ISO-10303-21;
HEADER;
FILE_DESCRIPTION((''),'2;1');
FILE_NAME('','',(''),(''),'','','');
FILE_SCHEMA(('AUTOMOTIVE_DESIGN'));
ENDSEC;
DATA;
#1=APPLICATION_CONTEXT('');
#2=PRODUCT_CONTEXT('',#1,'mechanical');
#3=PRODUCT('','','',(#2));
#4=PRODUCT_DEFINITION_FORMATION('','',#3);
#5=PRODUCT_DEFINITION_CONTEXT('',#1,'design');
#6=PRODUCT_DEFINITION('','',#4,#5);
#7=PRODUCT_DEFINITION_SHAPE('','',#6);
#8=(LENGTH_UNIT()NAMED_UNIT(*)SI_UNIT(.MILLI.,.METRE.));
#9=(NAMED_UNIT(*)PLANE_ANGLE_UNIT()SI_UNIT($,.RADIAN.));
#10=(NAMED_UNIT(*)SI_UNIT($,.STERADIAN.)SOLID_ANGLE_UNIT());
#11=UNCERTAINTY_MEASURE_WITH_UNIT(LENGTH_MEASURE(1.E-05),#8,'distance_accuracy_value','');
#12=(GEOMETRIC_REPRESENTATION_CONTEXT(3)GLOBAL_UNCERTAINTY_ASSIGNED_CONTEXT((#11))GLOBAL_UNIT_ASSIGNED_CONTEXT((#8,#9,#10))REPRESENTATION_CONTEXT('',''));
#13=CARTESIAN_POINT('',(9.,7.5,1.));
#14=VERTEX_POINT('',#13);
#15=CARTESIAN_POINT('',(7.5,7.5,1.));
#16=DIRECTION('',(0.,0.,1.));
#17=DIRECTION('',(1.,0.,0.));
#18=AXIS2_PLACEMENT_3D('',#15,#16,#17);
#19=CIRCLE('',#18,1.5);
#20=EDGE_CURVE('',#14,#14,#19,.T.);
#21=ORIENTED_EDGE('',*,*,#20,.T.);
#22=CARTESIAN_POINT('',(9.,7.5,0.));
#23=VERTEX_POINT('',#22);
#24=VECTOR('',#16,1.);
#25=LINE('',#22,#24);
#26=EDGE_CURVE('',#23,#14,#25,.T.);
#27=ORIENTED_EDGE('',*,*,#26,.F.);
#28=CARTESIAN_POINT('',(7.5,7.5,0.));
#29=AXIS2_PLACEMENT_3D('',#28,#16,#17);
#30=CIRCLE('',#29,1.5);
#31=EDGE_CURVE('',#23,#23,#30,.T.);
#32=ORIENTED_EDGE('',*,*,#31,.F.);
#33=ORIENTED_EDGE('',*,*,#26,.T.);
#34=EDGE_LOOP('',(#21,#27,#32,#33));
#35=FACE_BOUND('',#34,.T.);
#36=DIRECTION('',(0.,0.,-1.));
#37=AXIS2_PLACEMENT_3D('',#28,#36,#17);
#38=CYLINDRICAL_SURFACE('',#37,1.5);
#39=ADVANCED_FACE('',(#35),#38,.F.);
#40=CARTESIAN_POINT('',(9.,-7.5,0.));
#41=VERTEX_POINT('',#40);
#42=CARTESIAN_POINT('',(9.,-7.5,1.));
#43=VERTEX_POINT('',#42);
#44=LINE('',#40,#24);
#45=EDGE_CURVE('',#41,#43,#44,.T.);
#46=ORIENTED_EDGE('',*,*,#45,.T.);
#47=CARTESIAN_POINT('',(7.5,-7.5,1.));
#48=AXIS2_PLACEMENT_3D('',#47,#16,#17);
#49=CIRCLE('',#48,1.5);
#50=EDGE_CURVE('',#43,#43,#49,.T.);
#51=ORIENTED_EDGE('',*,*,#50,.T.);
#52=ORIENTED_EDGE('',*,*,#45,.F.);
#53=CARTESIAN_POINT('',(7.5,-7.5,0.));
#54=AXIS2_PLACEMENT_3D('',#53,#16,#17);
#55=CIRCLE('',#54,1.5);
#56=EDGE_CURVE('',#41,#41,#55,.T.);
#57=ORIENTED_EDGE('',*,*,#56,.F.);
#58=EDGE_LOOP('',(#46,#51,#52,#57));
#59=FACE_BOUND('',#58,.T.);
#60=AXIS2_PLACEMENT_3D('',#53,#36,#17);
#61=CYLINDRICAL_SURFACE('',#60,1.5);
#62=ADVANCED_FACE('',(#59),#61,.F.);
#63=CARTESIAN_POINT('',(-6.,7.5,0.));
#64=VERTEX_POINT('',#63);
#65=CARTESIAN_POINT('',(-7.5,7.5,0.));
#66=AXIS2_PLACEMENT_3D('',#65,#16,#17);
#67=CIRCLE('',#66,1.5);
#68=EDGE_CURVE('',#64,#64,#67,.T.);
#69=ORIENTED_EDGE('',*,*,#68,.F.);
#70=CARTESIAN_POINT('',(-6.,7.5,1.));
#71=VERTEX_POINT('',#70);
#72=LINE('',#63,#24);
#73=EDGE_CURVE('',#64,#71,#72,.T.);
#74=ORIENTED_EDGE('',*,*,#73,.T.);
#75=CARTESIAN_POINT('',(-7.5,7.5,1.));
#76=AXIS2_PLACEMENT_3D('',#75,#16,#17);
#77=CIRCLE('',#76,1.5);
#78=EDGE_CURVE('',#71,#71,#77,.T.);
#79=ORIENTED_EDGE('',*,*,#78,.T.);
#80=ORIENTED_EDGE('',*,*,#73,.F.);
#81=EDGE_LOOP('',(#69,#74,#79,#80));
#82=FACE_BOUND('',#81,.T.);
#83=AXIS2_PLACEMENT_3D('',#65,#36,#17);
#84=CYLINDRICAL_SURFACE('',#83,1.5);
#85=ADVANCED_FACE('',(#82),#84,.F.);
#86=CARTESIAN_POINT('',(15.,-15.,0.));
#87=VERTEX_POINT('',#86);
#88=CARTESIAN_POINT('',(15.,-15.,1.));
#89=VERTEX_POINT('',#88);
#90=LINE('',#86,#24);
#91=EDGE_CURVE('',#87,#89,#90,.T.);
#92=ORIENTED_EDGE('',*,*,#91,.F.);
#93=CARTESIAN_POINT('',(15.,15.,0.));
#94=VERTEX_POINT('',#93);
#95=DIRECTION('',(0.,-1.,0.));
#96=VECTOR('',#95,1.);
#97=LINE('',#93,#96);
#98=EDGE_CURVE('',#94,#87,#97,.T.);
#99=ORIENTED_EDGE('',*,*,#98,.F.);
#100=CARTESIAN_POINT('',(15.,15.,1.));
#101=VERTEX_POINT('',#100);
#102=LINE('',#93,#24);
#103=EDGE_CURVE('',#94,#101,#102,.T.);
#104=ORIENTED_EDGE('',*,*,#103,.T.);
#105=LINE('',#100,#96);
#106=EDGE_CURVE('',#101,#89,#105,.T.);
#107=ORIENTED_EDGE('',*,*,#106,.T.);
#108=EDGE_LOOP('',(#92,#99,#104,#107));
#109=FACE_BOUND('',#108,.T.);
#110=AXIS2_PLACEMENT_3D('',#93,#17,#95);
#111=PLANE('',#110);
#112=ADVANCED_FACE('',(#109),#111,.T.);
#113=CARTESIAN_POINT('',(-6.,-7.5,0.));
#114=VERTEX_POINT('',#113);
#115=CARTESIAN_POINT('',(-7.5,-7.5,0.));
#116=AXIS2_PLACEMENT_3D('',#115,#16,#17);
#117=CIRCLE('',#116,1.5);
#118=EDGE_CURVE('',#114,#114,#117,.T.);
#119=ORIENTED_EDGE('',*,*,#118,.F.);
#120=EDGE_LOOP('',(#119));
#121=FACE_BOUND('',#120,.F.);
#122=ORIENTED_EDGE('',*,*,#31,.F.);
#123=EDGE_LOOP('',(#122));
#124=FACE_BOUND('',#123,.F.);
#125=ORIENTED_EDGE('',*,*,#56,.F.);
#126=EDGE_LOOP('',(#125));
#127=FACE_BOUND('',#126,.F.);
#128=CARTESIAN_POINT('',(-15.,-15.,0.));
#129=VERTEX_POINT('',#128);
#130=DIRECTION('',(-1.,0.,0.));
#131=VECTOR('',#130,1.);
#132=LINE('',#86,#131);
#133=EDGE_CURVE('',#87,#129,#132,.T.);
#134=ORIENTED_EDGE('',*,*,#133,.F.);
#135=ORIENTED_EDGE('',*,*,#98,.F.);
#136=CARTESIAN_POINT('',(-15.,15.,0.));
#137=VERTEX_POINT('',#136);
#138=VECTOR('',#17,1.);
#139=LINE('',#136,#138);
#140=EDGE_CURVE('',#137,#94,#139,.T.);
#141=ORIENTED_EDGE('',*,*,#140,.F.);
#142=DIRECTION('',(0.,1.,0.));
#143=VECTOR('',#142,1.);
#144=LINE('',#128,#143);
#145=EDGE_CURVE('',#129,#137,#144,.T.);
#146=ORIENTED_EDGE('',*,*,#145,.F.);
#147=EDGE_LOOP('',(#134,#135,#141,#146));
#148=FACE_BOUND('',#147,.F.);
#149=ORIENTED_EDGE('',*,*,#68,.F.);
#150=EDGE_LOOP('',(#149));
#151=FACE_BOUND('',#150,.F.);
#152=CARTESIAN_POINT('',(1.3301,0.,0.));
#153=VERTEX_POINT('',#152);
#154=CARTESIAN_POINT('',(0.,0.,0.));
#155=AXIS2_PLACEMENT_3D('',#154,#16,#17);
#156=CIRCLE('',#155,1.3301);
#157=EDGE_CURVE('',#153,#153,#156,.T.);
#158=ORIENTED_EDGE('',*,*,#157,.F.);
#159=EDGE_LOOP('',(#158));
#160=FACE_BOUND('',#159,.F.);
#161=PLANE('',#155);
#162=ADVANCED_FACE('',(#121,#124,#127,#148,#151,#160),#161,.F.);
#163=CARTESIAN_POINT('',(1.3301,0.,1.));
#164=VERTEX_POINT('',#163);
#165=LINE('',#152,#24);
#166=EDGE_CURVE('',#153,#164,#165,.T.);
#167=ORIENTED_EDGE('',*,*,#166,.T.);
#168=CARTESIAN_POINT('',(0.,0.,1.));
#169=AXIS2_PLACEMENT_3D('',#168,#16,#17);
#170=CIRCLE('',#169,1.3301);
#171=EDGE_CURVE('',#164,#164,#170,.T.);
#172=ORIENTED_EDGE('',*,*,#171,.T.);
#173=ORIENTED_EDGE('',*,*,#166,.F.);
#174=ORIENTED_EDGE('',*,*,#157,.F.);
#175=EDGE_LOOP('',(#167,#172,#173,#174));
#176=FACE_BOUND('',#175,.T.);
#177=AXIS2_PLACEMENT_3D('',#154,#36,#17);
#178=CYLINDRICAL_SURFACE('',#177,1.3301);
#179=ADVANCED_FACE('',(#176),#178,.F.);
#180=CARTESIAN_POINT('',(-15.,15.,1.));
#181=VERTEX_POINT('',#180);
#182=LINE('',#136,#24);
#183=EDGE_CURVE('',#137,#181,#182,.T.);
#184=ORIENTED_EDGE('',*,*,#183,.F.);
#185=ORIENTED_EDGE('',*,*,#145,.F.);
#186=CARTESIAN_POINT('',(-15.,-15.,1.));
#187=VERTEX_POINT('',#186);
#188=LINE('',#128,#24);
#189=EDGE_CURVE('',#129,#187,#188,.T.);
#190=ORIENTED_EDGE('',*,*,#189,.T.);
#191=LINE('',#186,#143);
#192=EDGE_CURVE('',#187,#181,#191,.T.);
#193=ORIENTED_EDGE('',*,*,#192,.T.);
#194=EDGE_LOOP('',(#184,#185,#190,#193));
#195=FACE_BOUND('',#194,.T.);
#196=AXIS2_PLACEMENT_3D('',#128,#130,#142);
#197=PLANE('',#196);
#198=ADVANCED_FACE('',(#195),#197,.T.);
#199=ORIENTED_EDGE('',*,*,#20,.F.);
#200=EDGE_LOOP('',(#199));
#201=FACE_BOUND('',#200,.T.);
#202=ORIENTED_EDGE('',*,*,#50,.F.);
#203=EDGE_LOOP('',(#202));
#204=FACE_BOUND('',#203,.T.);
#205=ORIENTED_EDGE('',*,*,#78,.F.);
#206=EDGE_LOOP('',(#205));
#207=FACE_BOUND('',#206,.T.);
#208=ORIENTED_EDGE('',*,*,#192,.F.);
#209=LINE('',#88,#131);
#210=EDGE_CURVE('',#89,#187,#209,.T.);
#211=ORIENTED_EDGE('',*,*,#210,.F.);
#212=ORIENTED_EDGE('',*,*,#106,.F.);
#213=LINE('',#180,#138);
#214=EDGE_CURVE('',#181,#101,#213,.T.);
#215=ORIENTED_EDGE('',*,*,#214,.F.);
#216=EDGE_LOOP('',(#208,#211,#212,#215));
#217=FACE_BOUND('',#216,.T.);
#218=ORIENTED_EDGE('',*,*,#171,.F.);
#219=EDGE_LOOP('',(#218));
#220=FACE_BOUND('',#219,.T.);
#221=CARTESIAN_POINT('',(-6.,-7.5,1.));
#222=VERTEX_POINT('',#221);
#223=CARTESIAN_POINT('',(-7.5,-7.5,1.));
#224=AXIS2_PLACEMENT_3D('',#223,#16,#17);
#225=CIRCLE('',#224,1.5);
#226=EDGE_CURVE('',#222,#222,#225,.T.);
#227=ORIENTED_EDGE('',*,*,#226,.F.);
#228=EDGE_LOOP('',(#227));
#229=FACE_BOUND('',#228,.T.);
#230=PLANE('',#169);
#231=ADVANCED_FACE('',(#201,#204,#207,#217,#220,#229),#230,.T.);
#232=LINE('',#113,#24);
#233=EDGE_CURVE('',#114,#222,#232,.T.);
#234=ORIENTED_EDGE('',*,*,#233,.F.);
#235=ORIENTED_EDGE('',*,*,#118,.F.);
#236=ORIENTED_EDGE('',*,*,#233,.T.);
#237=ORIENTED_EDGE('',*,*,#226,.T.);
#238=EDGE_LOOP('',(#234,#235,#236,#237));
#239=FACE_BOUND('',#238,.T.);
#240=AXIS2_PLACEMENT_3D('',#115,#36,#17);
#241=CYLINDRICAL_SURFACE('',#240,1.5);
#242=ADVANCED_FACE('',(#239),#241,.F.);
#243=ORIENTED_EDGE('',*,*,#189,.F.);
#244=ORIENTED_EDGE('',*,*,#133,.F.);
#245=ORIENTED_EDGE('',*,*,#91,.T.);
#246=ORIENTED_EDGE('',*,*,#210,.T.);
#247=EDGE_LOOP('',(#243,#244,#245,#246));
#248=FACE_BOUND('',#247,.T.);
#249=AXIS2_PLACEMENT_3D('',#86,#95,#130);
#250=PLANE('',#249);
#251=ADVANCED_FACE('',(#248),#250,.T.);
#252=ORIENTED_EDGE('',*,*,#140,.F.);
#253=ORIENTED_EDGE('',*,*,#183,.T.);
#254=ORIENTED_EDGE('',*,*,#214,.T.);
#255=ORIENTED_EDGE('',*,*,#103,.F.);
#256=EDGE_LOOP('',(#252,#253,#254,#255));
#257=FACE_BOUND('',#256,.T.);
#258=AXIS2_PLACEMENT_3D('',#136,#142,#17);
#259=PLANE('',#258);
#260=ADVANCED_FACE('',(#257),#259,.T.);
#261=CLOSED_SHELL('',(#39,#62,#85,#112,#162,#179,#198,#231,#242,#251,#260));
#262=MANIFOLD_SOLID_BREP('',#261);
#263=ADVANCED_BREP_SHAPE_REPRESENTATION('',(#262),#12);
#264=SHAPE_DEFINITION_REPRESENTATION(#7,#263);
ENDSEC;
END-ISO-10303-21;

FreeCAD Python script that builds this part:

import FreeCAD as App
import Part
import Sketcher

V = App.Vector
Q = App.Units.Quantity

doc = App.newDocument("Part")
params = doc.addObject("Spreadsheet::Sheet", "Params")
for row, (alias, value) in enumerate([
    ("sketch1_diameter", "3 mm"),
    ("sketch1_width", "30 mm"),
    ("pad1_length", "1 mm"),
], start=1):
    params.set(f"A{row}", alias)
    params.set(f"B{row}", "=" + value)
    params.setAlias(f"B{row}", alias)

body = doc.addObject("PartDesign::Body", "Body")

sketch1 = doc.addObject("Sketcher::SketchObject", "Sketch")
body.addObject(sketch1)
sketch1.AttachmentSupport = (doc.XY_Plane, [""])
sketch1.MapMode = "FlatFace"
sketch1.addGeometry([
    Part.LineSegment(V(-15, -15, 0), V(15, -15, 0)),
    Part.LineSegment(V(15, -15, 0), V(15, 15, 0)),
    Part.LineSegment(V(15, 15, 0), V(-15, 15, 0)),
    Part.LineSegment(V(-15, 15, 0), V(-15, -15, 0)),
    Part.Circle(V(-7.5, -7.5, 0), V(0, 0, 1), 1.5),
    Part.Circle(V(7.5, -7.5, 0), V(0, 0, 1), 1.5),
    Part.Circle(V(-7.5, 7.5, 0), V(0, 0, 1), 1.5),
    Part.Circle(V(0, 0, 0), V(0, 0, 1), 1.3),
    Part.Circle(V(7.5, 7.5, 0), V(0, 0, 1), 1.5),
], False)
sketch1.addConstraint([
    Sketcher.Constraint("Coincident", 0, 2, 1, 1),
    Sketcher.Constraint("Coincident", 1, 2, 2, 1),
    Sketcher.Constraint("Coincident", 2, 2, 3, 1),
    Sketcher.Constraint("Coincident", 3, 2, 0, 1),
    Sketcher.Constraint("Horizontal", 0),
    Sketcher.Constraint("Vertical", 1),
    Sketcher.Constraint("Horizontal", 2),
    Sketcher.Constraint("Vertical", 3),
    Sketcher.Constraint("Coincident", 7, 3, -1, 1),
    Sketcher.Constraint("Equal", 4, 5),
    Sketcher.Constraint("Equal", 5, 6),
    Sketcher.Constraint("Equal", 6, 8),
    Sketcher.Constraint("Symmetric", 5, 3, 6, 3, -1, 1),
    Sketcher.Constraint("Symmetric", 4, 3, 8, 3, -1, 1),
    Sketcher.Constraint("Symmetric", 0, 2, 2, 2, -1, 1),
    Sketcher.Constraint("Symmetric", 4, 3, 5, 3, -2),
    Sketcher.Constraint("Equal", 2, 1),
    Sketcher.Constraint("Diameter", 4, Q("3 mm")),
    Sketcher.Constraint("DistanceX", 0, 1, 0, 2, Q("30 mm")),
    Sketcher.Constraint("DistanceX", 4, 3, 5, 3, Q("15 mm")),
    Sketcher.Constraint("DistanceY", 4, 3, 6, 3, Q("15 mm")),
    Sketcher.Constraint("Diameter", 7, Q("2.6602 mm")),
])
sketch1.setExpression("Constraints[17]", "Params.sketch1_diameter")
sketch1.setExpression("Constraints[18]", "Params.sketch1_width")
pad1 = doc.addObject("PartDesign::Pad", "Pad")
body.addObject(pad1)
pad1.Profile = sketch1
pad1.setExpression("Length", "Params.pad1_length")

doc.recompute()
